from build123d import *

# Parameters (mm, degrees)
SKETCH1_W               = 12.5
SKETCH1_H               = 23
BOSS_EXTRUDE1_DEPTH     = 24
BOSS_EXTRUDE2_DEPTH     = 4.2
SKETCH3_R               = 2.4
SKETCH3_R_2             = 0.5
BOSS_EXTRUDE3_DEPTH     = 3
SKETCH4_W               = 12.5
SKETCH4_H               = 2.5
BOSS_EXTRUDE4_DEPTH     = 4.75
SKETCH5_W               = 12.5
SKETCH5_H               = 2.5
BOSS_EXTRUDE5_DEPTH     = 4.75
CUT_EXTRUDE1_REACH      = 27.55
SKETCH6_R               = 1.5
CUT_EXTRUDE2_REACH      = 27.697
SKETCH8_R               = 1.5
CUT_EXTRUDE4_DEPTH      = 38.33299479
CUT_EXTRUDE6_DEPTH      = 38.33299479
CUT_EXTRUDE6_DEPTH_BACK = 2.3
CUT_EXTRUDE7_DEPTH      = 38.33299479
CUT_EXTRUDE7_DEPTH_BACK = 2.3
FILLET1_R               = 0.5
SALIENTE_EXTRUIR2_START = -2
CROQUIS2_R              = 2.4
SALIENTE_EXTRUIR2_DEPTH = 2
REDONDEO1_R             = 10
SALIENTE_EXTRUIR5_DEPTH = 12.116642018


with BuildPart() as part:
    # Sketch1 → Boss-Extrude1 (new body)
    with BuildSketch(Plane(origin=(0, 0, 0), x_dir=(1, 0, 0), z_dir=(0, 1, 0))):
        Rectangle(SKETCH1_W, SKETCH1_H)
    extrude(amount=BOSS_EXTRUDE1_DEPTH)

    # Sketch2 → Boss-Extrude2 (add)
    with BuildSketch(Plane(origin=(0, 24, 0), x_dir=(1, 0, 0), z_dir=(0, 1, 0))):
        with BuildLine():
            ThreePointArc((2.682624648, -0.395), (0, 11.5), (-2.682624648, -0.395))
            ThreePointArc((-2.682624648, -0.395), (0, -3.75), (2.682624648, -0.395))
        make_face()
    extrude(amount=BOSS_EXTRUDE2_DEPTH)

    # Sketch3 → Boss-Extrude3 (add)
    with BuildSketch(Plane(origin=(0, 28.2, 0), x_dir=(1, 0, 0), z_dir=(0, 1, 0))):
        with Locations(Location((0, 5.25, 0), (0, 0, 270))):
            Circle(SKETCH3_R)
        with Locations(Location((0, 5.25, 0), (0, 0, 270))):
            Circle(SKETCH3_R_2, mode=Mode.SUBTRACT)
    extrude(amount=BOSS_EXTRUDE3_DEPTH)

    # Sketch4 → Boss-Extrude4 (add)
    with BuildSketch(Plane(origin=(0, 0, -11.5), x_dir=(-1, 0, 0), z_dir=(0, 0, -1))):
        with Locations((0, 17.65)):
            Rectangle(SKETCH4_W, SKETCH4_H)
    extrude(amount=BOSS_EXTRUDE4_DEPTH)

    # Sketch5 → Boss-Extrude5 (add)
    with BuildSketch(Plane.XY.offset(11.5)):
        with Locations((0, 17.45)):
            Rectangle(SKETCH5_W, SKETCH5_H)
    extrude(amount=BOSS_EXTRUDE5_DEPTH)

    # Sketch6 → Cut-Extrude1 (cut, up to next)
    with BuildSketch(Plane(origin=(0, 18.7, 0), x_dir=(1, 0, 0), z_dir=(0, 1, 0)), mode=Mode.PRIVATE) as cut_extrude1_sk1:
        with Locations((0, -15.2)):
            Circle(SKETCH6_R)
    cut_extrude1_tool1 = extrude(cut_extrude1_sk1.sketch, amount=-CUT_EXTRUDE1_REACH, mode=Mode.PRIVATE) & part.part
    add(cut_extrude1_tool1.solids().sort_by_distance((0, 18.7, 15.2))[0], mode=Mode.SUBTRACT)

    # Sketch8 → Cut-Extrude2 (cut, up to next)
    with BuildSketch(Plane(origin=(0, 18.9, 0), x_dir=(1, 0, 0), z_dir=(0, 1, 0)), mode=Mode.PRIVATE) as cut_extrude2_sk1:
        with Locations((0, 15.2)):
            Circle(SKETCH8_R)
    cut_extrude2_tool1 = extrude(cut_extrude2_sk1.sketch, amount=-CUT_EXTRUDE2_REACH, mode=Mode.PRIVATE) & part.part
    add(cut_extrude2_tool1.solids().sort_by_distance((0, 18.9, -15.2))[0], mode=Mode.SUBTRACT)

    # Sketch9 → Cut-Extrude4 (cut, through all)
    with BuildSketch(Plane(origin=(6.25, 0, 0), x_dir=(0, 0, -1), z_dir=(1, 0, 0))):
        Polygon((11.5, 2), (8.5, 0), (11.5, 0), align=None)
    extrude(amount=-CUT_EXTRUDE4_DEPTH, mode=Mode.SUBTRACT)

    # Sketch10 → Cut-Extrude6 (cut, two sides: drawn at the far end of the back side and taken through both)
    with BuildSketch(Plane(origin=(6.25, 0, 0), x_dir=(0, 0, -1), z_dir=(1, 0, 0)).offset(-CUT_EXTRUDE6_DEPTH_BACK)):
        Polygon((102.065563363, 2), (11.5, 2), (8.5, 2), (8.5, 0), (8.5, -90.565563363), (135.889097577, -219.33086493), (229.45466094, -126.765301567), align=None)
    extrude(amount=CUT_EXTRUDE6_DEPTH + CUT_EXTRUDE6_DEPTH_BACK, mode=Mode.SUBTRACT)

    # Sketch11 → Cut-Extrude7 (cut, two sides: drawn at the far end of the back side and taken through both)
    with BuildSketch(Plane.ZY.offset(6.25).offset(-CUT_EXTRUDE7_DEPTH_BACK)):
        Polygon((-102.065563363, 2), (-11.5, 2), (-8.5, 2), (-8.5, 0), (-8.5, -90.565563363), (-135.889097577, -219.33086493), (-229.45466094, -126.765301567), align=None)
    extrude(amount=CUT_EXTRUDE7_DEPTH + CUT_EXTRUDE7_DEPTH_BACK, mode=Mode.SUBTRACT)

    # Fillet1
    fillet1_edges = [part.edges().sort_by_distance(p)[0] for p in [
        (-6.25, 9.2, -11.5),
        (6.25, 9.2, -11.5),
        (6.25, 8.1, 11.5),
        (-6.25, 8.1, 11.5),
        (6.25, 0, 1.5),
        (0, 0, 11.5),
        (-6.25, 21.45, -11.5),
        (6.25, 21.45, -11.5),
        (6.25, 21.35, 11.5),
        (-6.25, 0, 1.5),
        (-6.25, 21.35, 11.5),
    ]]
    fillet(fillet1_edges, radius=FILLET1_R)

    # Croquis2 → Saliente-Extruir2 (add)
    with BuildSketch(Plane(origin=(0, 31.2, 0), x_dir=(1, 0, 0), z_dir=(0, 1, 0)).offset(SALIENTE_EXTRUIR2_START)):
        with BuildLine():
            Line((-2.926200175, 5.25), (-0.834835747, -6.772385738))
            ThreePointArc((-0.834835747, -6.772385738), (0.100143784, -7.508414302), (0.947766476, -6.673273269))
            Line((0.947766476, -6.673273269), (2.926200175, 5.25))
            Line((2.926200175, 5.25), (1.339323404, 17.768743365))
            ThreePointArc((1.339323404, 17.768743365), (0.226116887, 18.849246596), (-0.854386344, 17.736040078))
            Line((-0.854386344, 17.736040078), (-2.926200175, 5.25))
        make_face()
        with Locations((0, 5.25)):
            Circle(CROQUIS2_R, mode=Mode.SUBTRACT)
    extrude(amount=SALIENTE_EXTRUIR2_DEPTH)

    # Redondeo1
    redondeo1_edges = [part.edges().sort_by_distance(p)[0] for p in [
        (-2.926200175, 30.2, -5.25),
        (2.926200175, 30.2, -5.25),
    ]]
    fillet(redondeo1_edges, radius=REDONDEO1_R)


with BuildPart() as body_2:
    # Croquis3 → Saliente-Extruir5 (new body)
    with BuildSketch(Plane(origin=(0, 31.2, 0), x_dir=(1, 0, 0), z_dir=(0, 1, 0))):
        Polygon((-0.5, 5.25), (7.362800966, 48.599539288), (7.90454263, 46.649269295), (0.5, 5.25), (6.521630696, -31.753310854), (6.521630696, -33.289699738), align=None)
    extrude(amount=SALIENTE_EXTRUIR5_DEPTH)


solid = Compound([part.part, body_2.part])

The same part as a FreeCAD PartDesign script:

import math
import FreeCAD as App
import Part
import Sketcher

V = App.Vector
Q = App.Units.Quantity


def edges_at(feature, points):
    """Names of the edges that pass closest to the given points."""
    edges = feature.Shape.Edges
    near = lambda p: min(range(len(edges)), key=lambda i: edges[i].distToShape(Part.Vertex(*p))[0])
    return sorted({f"Edge{near(p) + 1}" for p in points})

doc = App.newDocument("Part")
params = doc.addObject("Spreadsheet::Sheet", "Params")
for row, (alias, value) in enumerate([
    ("sketch1_height", "23 mm"),
    ("sketch1_width", "12.5 mm"),
    ("pad1_length", "24 mm"),
    ("sketch2_radius", "6.25 mm"),
    ("sketch2_radius2", "2.75 mm"),
    ("pad2_length", "4.2 mm"),
    ("sketch3_diameter", "1 mm"),
    ("sketch3_diameter2", "4.8 mm"),
    ("pad3_length", "3 mm"),
    ("sketch4_width", "12.5 mm"),
    ("sketch4_height", "2.5 mm"),
    ("pad4_length", "4.75 mm"),
    ("sketch5_width", "12.5 mm"),
    ("sketch5_height", "2.5 mm"),
    ("pad5_length", "4.75 mm"),
    ("sketch6_diameter", "3 mm"),
    ("sketch7_diameter", "3 mm"),
    ("sketch8_width", "2 mm"),
    ("sketch8_height", "3 mm"),
    ("pocket4_length", "38.332995 mm"),
    ("pocket4_length2", "2.3 mm"),
    ("pocket5_length", "38.332995 mm"),
    ("pocket5_length2", "2.3 mm"),
    ("fillet_radius", "0.5 mm"),
    ("sketch11_diameter", "4.8 mm"),
    ("pad6_length", "2 mm"),
    ("fillet2_radius", "10 mm"),
    ("pad7_length", "12.116642 mm"),
], start=1):
    params.set(f"A{row}", alias)
    params.set(f"B{row}", "=" + value)
    params.setAlias(f"B{row}", alias)

body = doc.addObject("PartDesign::Body", "Body")

# Sketch on XZ plane
sketch1 = body.newObject("Sketcher::SketchObject", "Sketch")
sketch1.AttachmentSupport = (doc.getObject("XZ_Plane"), [""])
sketch1.MapMode = "FlatFace"
sketch1.addGeometry([
    Part.LineSegment(V(-6, -12, 0), V(-6, 12, 0)),
    Part.LineSegment(V(-6, 12, 0), V(6, 12, 0)),
    Part.LineSegment(V(6, 12, 0), V(6, -12, 0)),
    Part.LineSegment(V(6, -12, 0), V(-6, -12, 0)),
], False)
sketch1.addConstraint([
    Sketcher.Constraint("Coincident", 0, 2, 1, 1),
    Sketcher.Constraint("Coincident", 1, 2, 2, 1),
    Sketcher.Constraint("Coincident", 2, 2, 3, 1),
    Sketcher.Constraint("Coincident", 3, 2, 0, 1),
    Sketcher.Constraint("Vertical", 0),
    Sketcher.Constraint("Horizontal", 1),
    Sketcher.Constraint("Vertical", 2),
    Sketcher.Constraint("Horizontal", 3),
    Sketcher.Constraint("Symmetric", 0, 2, 2, 2, -1, 1),
    Sketcher.Constraint("DistanceY", 0, 1, 0, 2, Q("23 mm")),
    Sketcher.Constraint("DistanceX", 1, 1, 1, 2, Q("12.5 mm")),
])
sketch1.setExpression("Constraints[9]", "Params.sketch1_height")
sketch1.setExpression("Constraints[10]", "Params.sketch1_width")
pad1 = body.newObject("PartDesign::Pad", "Pad")
pad1.Profile = sketch1
pad1.setExpression("Length", "Params.pad1_length")
pad1.Reversed = True

# Sketch on XZ plane
sketch2 = body.newObject("Sketcher::SketchObject", "Sketch001")
sketch2.AttachmentSupport = (doc.getObject("XZ_Plane"), [""])
sketch2.MapMode = "FlatFace"
sketch2.AttachmentOffset = App.Placement(V(0, 0, -24), App.Rotation())
sketch2.addGeometry([
    Part.ArcOfCircle(Part.Circle(V(0, -5.2, 0), V(0, 0, 1), 6.2), math.radians(115), math.radians(425)),
    Part.ArcOfCircle(Part.Circle(V(0, 1, 0), V(0, 0, 1), 2.8), math.radians(-13), math.radians(193)),
], False)
sketch2.addConstraint([
    Sketcher.Constraint("Coincident", 0, 1, 1, 2),
    Sketcher.Constraint("Coincident", 1, 1, 0, 2),
    Sketcher.Constraint("Symmetric", 0, 1, 1, 1, -2),
    Sketcher.Constraint("Radius", 0, Q("6.25 mm")),
    Sketcher.Constraint("Radius", 1, Q("2.75 mm")),
    Sketcher.Constraint("DistanceY", -1, 1, 1, 3, Q("1 mm")),
    Sketcher.Constraint("DistanceY", 0, 3, -1, 1, Q("5.25 mm")),
])
sketch2.setExpression("Constraints[3]", "Params.sketch2_radius")
sketch2.setExpression("Constraints[4]", "Params.sketch2_radius2")
pad2 = body.newObject("PartDesign::Pad", "Pad001")
pad2.Profile = sketch2
pad2.setExpression("Length", "Params.pad2_length")
pad2.Reversed = True

# Sketch on XZ plane
sketch3 = body.newObject("Sketcher::SketchObject", "Sketch002")
sketch3.AttachmentSupport = (doc.getObject("XZ_Plane"), [""])
sketch3.MapMode = "FlatFace"
sketch3.AttachmentOffset = App.Placement(V(0, 0, -28.2), App.Rotation())
sketch3.addGeometry([
    Part.Circle(V(0, -5.2, 0), V(0, 0, 1), 2.4),
    Part.Circle(V(0, -5.2, 0), V(0, 0, 1), 0.5),
], False)
sketch3.addConstraint([
    Sketcher.Constraint("Coincident", 1, 3, 0, 3),
    Sketcher.Constraint("PointOnObject", 0, 3, -2),
    Sketcher.Constraint("Diameter", 1, Q("1 mm")),
    Sketcher.Constraint("Diameter", 0, Q("4.8 mm")),
    Sketcher.Constraint("DistanceY", 0, 3, -1, 1, Q("5.25 mm")),
])
sketch3.setExpression("Constraints[2]", "Params.sketch3_diameter")
sketch3.setExpression("Constraints[3]", "Params.sketch3_diameter2")
pad3 = body.newObject("PartDesign::Pad", "Pad002")
pad3.Profile = sketch3
pad3.setExpression("Length", "Params.pad3_length")
pad3.Reversed = True

# Sketch on XY plane
sketch4 = body.newObject("Sketcher::SketchObject", "Sketch003")
sketch4.AttachmentSupport = (doc.getObject("XY_Plane"), [""])
sketch4.MapMode = "FlatFace"
sketch4.AttachmentOffset = App.Placement(V(0, 0, -11.5), App.Rotation())
sketch4.addGeometry([
    Part.LineSegment(V(6.2, 18.9, 0), V(6.2, 16.4, 0)),
    Part.LineSegment(V(6.2, 16.4, 0), V(-6.2, 16.4, 0)),
    Part.LineSegment(V(-6.2, 16.4, 0), V(-6.2, 18.9, 0)),
    Part.LineSegment(V(-6.2, 18.9, 0), V(6.2, 18.9, 0)),
], False)
sketch4.addConstraint([
    Sketcher.Constraint("Coincident", 0, 2, 1, 1),
    Sketcher.Constraint("Coincident", 1, 2, 2, 1),
    Sketcher.Constraint("Coincident", 2, 2, 3, 1),
    Sketcher.Constraint("Coincident", 3, 2, 0, 1),
    Sketcher.Constraint("Vertical", 0),
    Sketcher.Constraint("Horizontal", 1),
    Sketcher.Constraint("Vertical", 2),
    Sketcher.Constraint("Horizontal", 3),
    Sketcher.Constraint("DistanceX", 1, 2, 1, 1, Q("12.5 mm")),
    Sketcher.Constraint("DistanceY", 0, 2, 0, 1, Q("2.5 mm")),
    Sketcher.Constraint("DistanceY", -1, 1, 0, 2, Q("16.4 mm")),
    Sketcher.Constraint("DistanceX", -1, 1, 0, 2, Q("6.25 mm")),
])
sketch4.setExpression("Constraints[8]", "Params.sketch4_width")
sketch4.setExpression("Constraints[9]", "Params.sketch4_height")
pad4 = body.newObject("PartDesign::Pad", "Pad003")
pad4.Profile = sketch4
pad4.setExpression("Length", "Params.pad4_length")
pad4.Reversed = True

# Sketch on XY plane
sketch5 = body.newObject("Sketcher::SketchObject", "Sketch004")
sketch5.AttachmentSupport = (doc.getObject("XY_Plane"), [""])
sketch5.MapMode = "FlatFace"
sketch5.AttachmentOffset = App.Placement(V(0, 0, 11.5), App.Rotation())
sketch5.addGeometry([
    Part.LineSegment(V(-6.2, 18.7, 0), V(-6.2, 16.2, 0)),
    Part.LineSegment(V(-6.2, 16.2, 0), V(6.2, 16.2, 0)),
    Part.LineSegment(V(6.2, 16.2, 0), V(6.2, 18.7, 0)),
    Part.LineSegment(V(6.2, 18.7, 0), V(-6.2, 18.7, 0)),
], False)
sketch5.addConstraint([
    Sketcher.Constraint("Coincident", 0, 2, 1, 1),
    Sketcher.Constraint("Coincident", 1, 2, 2, 1),
    Sketcher.Constraint("Coincident", 2, 2, 3, 1),
    Sketcher.Constraint("Coincident", 3, 2, 0, 1),
    Sketcher.Constraint("Vertical", 0),
    Sketcher.Constraint("Horizontal", 1),
    Sketcher.Constraint("Vertical", 2),
    Sketcher.Constraint("Horizontal", 3),
    Sketcher.Constraint("DistanceX", 1, 1, 1, 2, Q("12.5 mm")),
    Sketcher.Constraint("DistanceY", 0, 2, 0, 1, Q("2.5 mm")),
    Sketcher.Constraint("DistanceY", -1, 1, 0, 2, Q("16.2 mm")),
    Sketcher.Constraint("DistanceX", 0, 2, -1, 1, Q("6.25 mm")),
])
sketch5.setExpression("Constraints[8]", "Params.sketch5_width")
sketch5.setExpression("Constraints[9]", "Params.sketch5_height")
pad5 = body.newObject("PartDesign::Pad", "Pad004")
pad5.Profile = sketch5
pad5.setExpression("Length", "Params.pad5_length")

# Sketch on XZ plane
sketch6 = body.newObject("Sketcher::SketchObject", "Sketch005")
sketch6.AttachmentSupport = (doc.getObject("XZ_Plane"), [""])
sketch6.MapMode = "FlatFace"
sketch6.AttachmentOffset = App.Placement(V(0, 0, -18.7), App.Rotation())
sketch6.addGeometry(Part.Circle(V(0, 15.2, 0), V(0, 0, 1), 1.5), False)
sketch6.addConstraint([
    Sketcher.Constraint("PointOnObject", 0, 3, -2),
    Sketcher.Constraint("Diameter", 0, Q("3 mm")),
    Sketcher.Constraint("DistanceY", -1, 1, 0, 3, Q("15.2 mm")),
])
sketch6.setExpression("Constraints[1]", "Params.sketch6_diameter")
pocket1 = body.newObject("PartDesign::Pocket", "Pocket")
pocket1.Profile = sketch6
pocket1.Type = "UpToFirst"
pocket1.Reversed = True

# Sketch on XZ plane
sketch7 = body.newObject("Sketcher::SketchObject", "Sketch006")
sketch7.AttachmentSupport = (doc.getObject("XZ_Plane"), [""])
sketch7.MapMode = "FlatFace"
sketch7.AttachmentOffset = App.Placement(V(0, 0, -18.9), App.Rotation())
sketch7.addGeometry(Part.Circle(V(0, -15.2, 0), V(0, 0, 1), 1.5), False)
sketch7.addConstraint([
    Sketcher.Constraint("PointOnObject", 0, 3, -2),
    Sketcher.Constraint("Diameter", 0, Q("3 mm")),
    Sketcher.Constraint("DistanceY", 0, 3, -1, 1, Q("15.2 mm")),
])
sketch7.setExpression("Constraints[1]", "Params.sketch7_diameter")
pocket2 = body.newObject("PartDesign::Pocket", "Pocket001")
pocket2.Profile = sketch7
pocket2.Type = "UpToFirst"
pocket2.Reversed = True

# Sketch on YZ plane
sketch8 = body.newObject("Sketcher::SketchObject", "Sketch007")
sketch8.AttachmentSupport = (doc.getObject("YZ_Plane"), [""])
sketch8.MapMode = "FlatFace"
sketch8.AttachmentOffset = App.Placement(V(0, 0, 6.25), App.Rotation())
sketch8.addGeometry([
    Part.LineSegment(V(2, -11.5, 0), V(0, -8.5, 0)),
    Part.LineSegment(V(0, -8.5, 0), V(0, -11.5, 0)),
    Part.LineSegment(V(0, -11.5, 0), V(2, -11.5, 0)),
], False)
sketch8.addConstraint([
    Sketcher.Constraint("Coincident", 0, 2, 1, 1),
    Sketcher.Constraint("Coincident", 1, 2, 2, 1),
    Sketcher.Constraint("Coincident", 2, 2, 0, 1),
    Sketcher.Constraint("Vertical", 1),
    Sketcher.Constraint("Horizontal", 2),
    Sketcher.Constraint("PointOnObject", 0, 2, -2),
    Sketcher.Constraint("DistanceX", 2, 1, 2, 2, Q("2 mm")),
    Sketcher.Constraint("DistanceY", 1, 2, 1, 1, Q("3 mm")),
    Sketcher.Constraint("DistanceY", 0, 2, -1, 1, Q("8.5 mm")),
])
sketch8.setExpression("Constraints[6]", "Params.sketch8_width")
sketch8.setExpression("Constraints[7]", "Params.sketch8_height")
pocket3 = body.newObject("PartDesign::Pocket", "Pocket002")
pocket3.Profile = sketch8
pocket3.Type = "ThroughAll"

# Sketch on YZ plane
sketch9 = body.newObject("Sketcher::SketchObject", "Sketch008")
sketch9.AttachmentSupport = (doc.getObject("YZ_Plane"), [""])
sketch9.MapMode = "FlatFace"
sketch9.AttachmentOffset = App.Placement(V(0, 0, 6.25), App.Rotation())
sketch9.addGeometry([
    Part.LineSegment(V(2, -102, 0), V(2, -8, 0)),  # 0
    Part.LineSegment(V(2, -8, 0), V(-91, -8, 0)),  # 1
    Part.LineSegment(V(-91, -8, 0), V(-219, -136, 0)),  # 2
    Part.LineSegment(V(-219, -136, 0), V(-127, -229, 0)),  # 3
    Part.LineSegment(V(-127, -229, 0), V(2, -102, 0)),  # 4
], False)
sketch9.addConstraint([
    Sketcher.Constraint("Coincident", 0, 2, 1, 1),
    Sketcher.Constraint("Coincident", 1, 2, 2, 1),
    Sketcher.Constraint("Coincident", 2, 2, 3, 1),
    Sketcher.Constraint("Coincident", 3, 2, 4, 1),
    Sketcher.Constraint("Coincident", 4, 2, 0, 1),
    Sketcher.Constraint("Vertical", 0),
    Sketcher.Constraint("Horizontal", 1),
    Sketcher.Constraint("Perpendicular", 2, 3),
    Sketcher.Constraint("Perpendicular", 3, 4),
    Sketcher.Constraint("Equal", 2, 4),
    Sketcher.Constraint("DistanceX", -1, 1, 0, 2, Q("2 mm")),
    Sketcher.Constraint("DistanceY", 0, 2, -1, 1, Q("8.5 mm")),
    Sketcher.Constraint("DistanceX", 3, 2, -1, 1, Q("126.765302 mm")),
    Sketcher.Constraint("Distance", 3, Q("131.616481 mm")),
    Sketcher.Constraint("DistanceX", 1, 2, 1, 1, Q("92.565563 mm")),
])
pocket4 = body.newObject("PartDesign::Pocket", "Pocket003")
pocket4.Profile = sketch9
pocket4.Type = "TwoLengths"
pocket4.setExpression("Length", "Params.pocket4_length")
pocket4.setExpression("Length2", "Params.pocket4_length2")
pocket4.Reversed = True

# Sketch on YZ plane
sketch10 = body.newObject("Sketcher::SketchObject", "Sketch009")
sketch10.AttachmentSupport = (doc.getObject("YZ_Plane"), [""])
sketch10.MapMode = "FlatFace"
sketch10.AttachmentOffset = App.Placement(V(0, 0, -6.25), App.Rotation())
sketch10.addGeometry([
    Part.LineSegment(V(2, -8, 0), V(2, -102, 0)),  # 0
    Part.LineSegment(V(2, -102, 0), V(-127, -229, 0)),  # 1
    Part.LineSegment(V(-127, -229, 0), V(-219, -136, 0)),  # 2
    Part.LineSegment(V(-219, -136, 0), V(-91, -8, 0)),  # 3
    Part.LineSegment(V(-91, -8, 0), V(2, -8, 0)),  # 4
], False)
sketch10.addConstraint([
    Sketcher.Constraint("Coincident", 0, 2, 1, 1),
    Sketcher.Constraint("Coincident", 1, 2, 2, 1),
    Sketcher.Constraint("Coincident", 2, 2, 3, 1),
    Sketcher.Constraint("Coincident", 3, 2, 4, 1),
    Sketcher.Constraint("Coincident", 4, 2, 0, 1),
    Sketcher.Constraint("Vertical", 0),
    Sketcher.Constraint("Horizontal", 4),
    Sketcher.Constraint("Perpendicular", 1, 2),
    Sketcher.Constraint("Perpendicular", 2, 3),
    Sketcher.Constraint("Equal", 1, 3),
    Sketcher.Constraint("DistanceX", -1, 1, 0, 2, Q("2 mm")),
    Sketcher.Constraint("DistanceY", 3, 2, -1, 1, Q("8.5 mm")),
    Sketcher.Constraint("DistanceX", 1, 2, -1, 1, Q("126.765302 mm")),
    Sketcher.Constraint("Distance", 2, Q("131.616481 mm")),
    Sketcher.Constraint("DistanceX", 4, 1, 4, 2, Q("92.565563 mm")),
])
pocket5 = body.newObject("PartDesign::Pocket", "Pocket004")
pocket5.Profile = sketch10
pocket5.Type = "TwoLengths"
pocket5.setExpression("Length", "Params.pocket5_length")
pocket5.setExpression("Length2", "Params.pocket5_length2")
doc.recompute()

fillet = body.newObject("PartDesign::Fillet", "Fillet")
fillet.Base = (pocket5, edges_at(pocket5, [
    (-6.25, 9.2, -11.5),
    (6.25, 9.2, -11.5),
    (6.25, 8.1, 11.5),
    (-6.25, 8.1, 11.5),
    (6.25, 0, 1.5),
    (0, 0, 11.5),
    (-6.25, 21.45, -11.5),
    (6.25, 21.45, -11.5),
    (6.25, 21.35, 11.5),
    (-6.25, 0, 1.5),
    (-6.25, 21.35, 11.5),
]))
fillet.setExpression("Radius", "Params.fillet_radius")

# Sketch on XZ plane
sketch11 = body.newObject("Sketcher::SketchObject", "Sketch010")
sketch11.AttachmentSupport = (doc.getObject("XZ_Plane"), [""])
sketch11.MapMode = "FlatFace"
sketch11.AttachmentOffset = App.Placement(V(0, 0, -29.2), App.Rotation())
sketch11.addGeometry([
    Part.LineSegment(V(-2.9, -5.2, 0), V(-0.8, 6.8, 0)),  # 0
    Part.ArcOfCircle(Part.Circle(V(0.1, 6.6, 0), V(0, 0, 1), 0.9), math.radians(4), math.radians(170)),  # 1
    Part.LineSegment(V(0.9, 6.7, 0), V(2.9, -5.2, 0)),  # 2
    Part.LineSegment(V(2.9, -5.2, 0), V(1.3, -17.8, 0)),  # 3
    Part.ArcOfCircle(Part.Circle(V(0.2, -17.8, 0), V(0, 0, 1), 1.1), math.radians(179), math.radians(359)),  # 4
    Part.LineSegment(V(-0.9, -17.7, 0), V(-2.9, -5.2, 0)),  # 5
    Part.Circle(V(0, -5.2, 0), V(0, 0, 1), 2.4),  # 6
], False)
sketch11.addConstraint([
    Sketcher.Constraint("Coincident", 0, 2, 1, 2),
    Sketcher.Constraint("Coincident", 1, 1, 2, 1),
    Sketcher.Constraint("Coincident", 2, 2, 3, 1),
    Sketcher.Constraint("Coincident", 3, 2, 4, 2),
    Sketcher.Constraint("Coincident", 4, 1, 5, 1),
    Sketcher.Constraint("Coincident", 5, 2, 0, 1),
    Sketcher.Constraint("Symmetric", 2, 2, 5, 2, -2),
    Sketcher.Constraint("PointOnObject", 6, 3, -2),
    Sketcher.Constraint("Parallel", 2, 5),
    Sketcher.Constraint("Horizontal", 6, 3, 2, 2),
    Sketcher.Constraint("Diameter", 6, Q("4.8 mm")),
    Sketcher.Constraint("Radius", 1, Q("0.899802 mm")),
    Sketcher.Constraint("DistanceY", -1, 1, 1, 3, Q("6.61 mm")),
    Sketcher.Constraint("DistanceY", 6, 3, -1, 1, Q("5.25 mm")),
    Sketcher.Constraint("Radius", 4, Q("1.096977 mm")),
    Sketcher.Constraint("Distance", 2, Q("12.0863 mm")),
    Sketcher.Constraint("DistanceX", -1, 1, 2, 2, Q("2.9262 mm")),
    Sketcher.Constraint("Distance", 3, Q("12.618919 mm")),
    Sketcher.Constraint("Distance", 5, Q("12.656761 mm")),
    Sketcher.Constraint("DistanceX", -1, 1, 4, 3, Q("0.242469 mm")),
    Sketcher.Constraint("DistanceY", 4, 3, -1, 1, Q("17.752392 mm")),
    Sketcher.Constraint("Distance", 0, Q("12.202933 mm")),
])
sketch11.setExpression("Constraints[10]", "Params.sketch11_diameter")
pad6 = body.newObject("PartDesign::Pad", "Pad005")
pad6.Profile = sketch11
pad6.setExpression("Length", "Params.pad6_length")
pad6.Reversed = True
doc.recompute()

fillet2 = body.newObject("PartDesign::Fillet", "Fillet001")
fillet2.Base = (pad6, edges_at(pad6, [(-2.926, 30.2, -5.25), (2.926, 30.2, -5.25)]))
fillet2.setExpression("Radius", "Params.fillet2_radius")
body2 = doc.addObject("PartDesign::Body", "Body001")

# Sketch on XZ plane
sketch12 = body2.newObject("Sketcher::SketchObject", "Sketch011")
sketch12.AttachmentSupport = (doc.getObject("XZ_Plane001"), [""])
sketch12.MapMode = "FlatFace"
sketch12.AttachmentOffset = App.Placement(V(0, 0, -31.2), App.Rotation())
sketch12.addGeometry([
    Part.LineSegment(V(7.4, -48.6, 0), V(-0.5, -5.2, 0)),  # 0
    Part.LineSegment(V(-0.5, -5.2, 0), V(6.5, 33.3, 0)),  # 1
    Part.LineSegment(V(6.5, 33.3, 0), V(6.5, 31.8, 0)),  # 2
    Part.LineSegment(V(6.5, 31.8, 0), V(0.5, -5.2, 0)),  # 3
    Part.LineSegment(V(0.5, -5.2, 0), V(7.9, -46.6, 0)),  # 4
    Part.LineSegment(V(7.9, -46.6, 0), V(7.4, -48.6, 0)),  # 5
], False)
sketch12.addConstraint([
    Sketcher.Constraint("Coincident", 0, 2, 1, 1),
    Sketcher.Constraint("Coincident", 1, 2, 2, 1),
    Sketcher.Constraint("Coincident", 2, 2, 3, 1),
    Sketcher.Constraint("Coincident", 3, 2, 4, 1),
    Sketcher.Constraint("Coincident", 4, 2, 5, 1),
    Sketcher.Constraint("Coincident", 5, 2, 0, 1),
    Sketcher.Constraint("Vertical", 2),
    Sketcher.Constraint("Symmetric", 0, 2, 3, 2, -2),
    Sketcher.Constraint("DistanceX", 0, 2, 3, 2, Q("1 mm")),
    Sketcher.Constraint("DistanceY", 0, 2, -1, 1, Q("5.25 mm")),
    Sketcher.Constraint("DistanceY", 2, 2, 2, 1, Q("1.536389 mm")),
    Sketcher.Constraint("DistanceY", -1, 1, 1, 2, Q("33.2897 mm")),
    Sketcher.Constraint("DistanceX", -1, 1, 5, 2, Q("7.362801 mm")),
    Sketcher.Constraint("Distance", 0, Q("44.056852 mm")),
    Sketcher.Constraint("Distance", 1, Q("39.174121 mm")),
    Sketcher.Constraint("DistanceY", 4, 2, -1, 1, Q("46.649269 mm")),
    Sketcher.Constraint("DistanceX", 2, 2, 4, 2, Q("1.382912 mm")),
])
pad7 = body2.newObject("PartDesign::Pad", "Pad006")
pad7.Profile = sketch12
pad7.setExpression("Length", "Params.pad7_length")
pad7.Reversed = True

doc.recompute()
